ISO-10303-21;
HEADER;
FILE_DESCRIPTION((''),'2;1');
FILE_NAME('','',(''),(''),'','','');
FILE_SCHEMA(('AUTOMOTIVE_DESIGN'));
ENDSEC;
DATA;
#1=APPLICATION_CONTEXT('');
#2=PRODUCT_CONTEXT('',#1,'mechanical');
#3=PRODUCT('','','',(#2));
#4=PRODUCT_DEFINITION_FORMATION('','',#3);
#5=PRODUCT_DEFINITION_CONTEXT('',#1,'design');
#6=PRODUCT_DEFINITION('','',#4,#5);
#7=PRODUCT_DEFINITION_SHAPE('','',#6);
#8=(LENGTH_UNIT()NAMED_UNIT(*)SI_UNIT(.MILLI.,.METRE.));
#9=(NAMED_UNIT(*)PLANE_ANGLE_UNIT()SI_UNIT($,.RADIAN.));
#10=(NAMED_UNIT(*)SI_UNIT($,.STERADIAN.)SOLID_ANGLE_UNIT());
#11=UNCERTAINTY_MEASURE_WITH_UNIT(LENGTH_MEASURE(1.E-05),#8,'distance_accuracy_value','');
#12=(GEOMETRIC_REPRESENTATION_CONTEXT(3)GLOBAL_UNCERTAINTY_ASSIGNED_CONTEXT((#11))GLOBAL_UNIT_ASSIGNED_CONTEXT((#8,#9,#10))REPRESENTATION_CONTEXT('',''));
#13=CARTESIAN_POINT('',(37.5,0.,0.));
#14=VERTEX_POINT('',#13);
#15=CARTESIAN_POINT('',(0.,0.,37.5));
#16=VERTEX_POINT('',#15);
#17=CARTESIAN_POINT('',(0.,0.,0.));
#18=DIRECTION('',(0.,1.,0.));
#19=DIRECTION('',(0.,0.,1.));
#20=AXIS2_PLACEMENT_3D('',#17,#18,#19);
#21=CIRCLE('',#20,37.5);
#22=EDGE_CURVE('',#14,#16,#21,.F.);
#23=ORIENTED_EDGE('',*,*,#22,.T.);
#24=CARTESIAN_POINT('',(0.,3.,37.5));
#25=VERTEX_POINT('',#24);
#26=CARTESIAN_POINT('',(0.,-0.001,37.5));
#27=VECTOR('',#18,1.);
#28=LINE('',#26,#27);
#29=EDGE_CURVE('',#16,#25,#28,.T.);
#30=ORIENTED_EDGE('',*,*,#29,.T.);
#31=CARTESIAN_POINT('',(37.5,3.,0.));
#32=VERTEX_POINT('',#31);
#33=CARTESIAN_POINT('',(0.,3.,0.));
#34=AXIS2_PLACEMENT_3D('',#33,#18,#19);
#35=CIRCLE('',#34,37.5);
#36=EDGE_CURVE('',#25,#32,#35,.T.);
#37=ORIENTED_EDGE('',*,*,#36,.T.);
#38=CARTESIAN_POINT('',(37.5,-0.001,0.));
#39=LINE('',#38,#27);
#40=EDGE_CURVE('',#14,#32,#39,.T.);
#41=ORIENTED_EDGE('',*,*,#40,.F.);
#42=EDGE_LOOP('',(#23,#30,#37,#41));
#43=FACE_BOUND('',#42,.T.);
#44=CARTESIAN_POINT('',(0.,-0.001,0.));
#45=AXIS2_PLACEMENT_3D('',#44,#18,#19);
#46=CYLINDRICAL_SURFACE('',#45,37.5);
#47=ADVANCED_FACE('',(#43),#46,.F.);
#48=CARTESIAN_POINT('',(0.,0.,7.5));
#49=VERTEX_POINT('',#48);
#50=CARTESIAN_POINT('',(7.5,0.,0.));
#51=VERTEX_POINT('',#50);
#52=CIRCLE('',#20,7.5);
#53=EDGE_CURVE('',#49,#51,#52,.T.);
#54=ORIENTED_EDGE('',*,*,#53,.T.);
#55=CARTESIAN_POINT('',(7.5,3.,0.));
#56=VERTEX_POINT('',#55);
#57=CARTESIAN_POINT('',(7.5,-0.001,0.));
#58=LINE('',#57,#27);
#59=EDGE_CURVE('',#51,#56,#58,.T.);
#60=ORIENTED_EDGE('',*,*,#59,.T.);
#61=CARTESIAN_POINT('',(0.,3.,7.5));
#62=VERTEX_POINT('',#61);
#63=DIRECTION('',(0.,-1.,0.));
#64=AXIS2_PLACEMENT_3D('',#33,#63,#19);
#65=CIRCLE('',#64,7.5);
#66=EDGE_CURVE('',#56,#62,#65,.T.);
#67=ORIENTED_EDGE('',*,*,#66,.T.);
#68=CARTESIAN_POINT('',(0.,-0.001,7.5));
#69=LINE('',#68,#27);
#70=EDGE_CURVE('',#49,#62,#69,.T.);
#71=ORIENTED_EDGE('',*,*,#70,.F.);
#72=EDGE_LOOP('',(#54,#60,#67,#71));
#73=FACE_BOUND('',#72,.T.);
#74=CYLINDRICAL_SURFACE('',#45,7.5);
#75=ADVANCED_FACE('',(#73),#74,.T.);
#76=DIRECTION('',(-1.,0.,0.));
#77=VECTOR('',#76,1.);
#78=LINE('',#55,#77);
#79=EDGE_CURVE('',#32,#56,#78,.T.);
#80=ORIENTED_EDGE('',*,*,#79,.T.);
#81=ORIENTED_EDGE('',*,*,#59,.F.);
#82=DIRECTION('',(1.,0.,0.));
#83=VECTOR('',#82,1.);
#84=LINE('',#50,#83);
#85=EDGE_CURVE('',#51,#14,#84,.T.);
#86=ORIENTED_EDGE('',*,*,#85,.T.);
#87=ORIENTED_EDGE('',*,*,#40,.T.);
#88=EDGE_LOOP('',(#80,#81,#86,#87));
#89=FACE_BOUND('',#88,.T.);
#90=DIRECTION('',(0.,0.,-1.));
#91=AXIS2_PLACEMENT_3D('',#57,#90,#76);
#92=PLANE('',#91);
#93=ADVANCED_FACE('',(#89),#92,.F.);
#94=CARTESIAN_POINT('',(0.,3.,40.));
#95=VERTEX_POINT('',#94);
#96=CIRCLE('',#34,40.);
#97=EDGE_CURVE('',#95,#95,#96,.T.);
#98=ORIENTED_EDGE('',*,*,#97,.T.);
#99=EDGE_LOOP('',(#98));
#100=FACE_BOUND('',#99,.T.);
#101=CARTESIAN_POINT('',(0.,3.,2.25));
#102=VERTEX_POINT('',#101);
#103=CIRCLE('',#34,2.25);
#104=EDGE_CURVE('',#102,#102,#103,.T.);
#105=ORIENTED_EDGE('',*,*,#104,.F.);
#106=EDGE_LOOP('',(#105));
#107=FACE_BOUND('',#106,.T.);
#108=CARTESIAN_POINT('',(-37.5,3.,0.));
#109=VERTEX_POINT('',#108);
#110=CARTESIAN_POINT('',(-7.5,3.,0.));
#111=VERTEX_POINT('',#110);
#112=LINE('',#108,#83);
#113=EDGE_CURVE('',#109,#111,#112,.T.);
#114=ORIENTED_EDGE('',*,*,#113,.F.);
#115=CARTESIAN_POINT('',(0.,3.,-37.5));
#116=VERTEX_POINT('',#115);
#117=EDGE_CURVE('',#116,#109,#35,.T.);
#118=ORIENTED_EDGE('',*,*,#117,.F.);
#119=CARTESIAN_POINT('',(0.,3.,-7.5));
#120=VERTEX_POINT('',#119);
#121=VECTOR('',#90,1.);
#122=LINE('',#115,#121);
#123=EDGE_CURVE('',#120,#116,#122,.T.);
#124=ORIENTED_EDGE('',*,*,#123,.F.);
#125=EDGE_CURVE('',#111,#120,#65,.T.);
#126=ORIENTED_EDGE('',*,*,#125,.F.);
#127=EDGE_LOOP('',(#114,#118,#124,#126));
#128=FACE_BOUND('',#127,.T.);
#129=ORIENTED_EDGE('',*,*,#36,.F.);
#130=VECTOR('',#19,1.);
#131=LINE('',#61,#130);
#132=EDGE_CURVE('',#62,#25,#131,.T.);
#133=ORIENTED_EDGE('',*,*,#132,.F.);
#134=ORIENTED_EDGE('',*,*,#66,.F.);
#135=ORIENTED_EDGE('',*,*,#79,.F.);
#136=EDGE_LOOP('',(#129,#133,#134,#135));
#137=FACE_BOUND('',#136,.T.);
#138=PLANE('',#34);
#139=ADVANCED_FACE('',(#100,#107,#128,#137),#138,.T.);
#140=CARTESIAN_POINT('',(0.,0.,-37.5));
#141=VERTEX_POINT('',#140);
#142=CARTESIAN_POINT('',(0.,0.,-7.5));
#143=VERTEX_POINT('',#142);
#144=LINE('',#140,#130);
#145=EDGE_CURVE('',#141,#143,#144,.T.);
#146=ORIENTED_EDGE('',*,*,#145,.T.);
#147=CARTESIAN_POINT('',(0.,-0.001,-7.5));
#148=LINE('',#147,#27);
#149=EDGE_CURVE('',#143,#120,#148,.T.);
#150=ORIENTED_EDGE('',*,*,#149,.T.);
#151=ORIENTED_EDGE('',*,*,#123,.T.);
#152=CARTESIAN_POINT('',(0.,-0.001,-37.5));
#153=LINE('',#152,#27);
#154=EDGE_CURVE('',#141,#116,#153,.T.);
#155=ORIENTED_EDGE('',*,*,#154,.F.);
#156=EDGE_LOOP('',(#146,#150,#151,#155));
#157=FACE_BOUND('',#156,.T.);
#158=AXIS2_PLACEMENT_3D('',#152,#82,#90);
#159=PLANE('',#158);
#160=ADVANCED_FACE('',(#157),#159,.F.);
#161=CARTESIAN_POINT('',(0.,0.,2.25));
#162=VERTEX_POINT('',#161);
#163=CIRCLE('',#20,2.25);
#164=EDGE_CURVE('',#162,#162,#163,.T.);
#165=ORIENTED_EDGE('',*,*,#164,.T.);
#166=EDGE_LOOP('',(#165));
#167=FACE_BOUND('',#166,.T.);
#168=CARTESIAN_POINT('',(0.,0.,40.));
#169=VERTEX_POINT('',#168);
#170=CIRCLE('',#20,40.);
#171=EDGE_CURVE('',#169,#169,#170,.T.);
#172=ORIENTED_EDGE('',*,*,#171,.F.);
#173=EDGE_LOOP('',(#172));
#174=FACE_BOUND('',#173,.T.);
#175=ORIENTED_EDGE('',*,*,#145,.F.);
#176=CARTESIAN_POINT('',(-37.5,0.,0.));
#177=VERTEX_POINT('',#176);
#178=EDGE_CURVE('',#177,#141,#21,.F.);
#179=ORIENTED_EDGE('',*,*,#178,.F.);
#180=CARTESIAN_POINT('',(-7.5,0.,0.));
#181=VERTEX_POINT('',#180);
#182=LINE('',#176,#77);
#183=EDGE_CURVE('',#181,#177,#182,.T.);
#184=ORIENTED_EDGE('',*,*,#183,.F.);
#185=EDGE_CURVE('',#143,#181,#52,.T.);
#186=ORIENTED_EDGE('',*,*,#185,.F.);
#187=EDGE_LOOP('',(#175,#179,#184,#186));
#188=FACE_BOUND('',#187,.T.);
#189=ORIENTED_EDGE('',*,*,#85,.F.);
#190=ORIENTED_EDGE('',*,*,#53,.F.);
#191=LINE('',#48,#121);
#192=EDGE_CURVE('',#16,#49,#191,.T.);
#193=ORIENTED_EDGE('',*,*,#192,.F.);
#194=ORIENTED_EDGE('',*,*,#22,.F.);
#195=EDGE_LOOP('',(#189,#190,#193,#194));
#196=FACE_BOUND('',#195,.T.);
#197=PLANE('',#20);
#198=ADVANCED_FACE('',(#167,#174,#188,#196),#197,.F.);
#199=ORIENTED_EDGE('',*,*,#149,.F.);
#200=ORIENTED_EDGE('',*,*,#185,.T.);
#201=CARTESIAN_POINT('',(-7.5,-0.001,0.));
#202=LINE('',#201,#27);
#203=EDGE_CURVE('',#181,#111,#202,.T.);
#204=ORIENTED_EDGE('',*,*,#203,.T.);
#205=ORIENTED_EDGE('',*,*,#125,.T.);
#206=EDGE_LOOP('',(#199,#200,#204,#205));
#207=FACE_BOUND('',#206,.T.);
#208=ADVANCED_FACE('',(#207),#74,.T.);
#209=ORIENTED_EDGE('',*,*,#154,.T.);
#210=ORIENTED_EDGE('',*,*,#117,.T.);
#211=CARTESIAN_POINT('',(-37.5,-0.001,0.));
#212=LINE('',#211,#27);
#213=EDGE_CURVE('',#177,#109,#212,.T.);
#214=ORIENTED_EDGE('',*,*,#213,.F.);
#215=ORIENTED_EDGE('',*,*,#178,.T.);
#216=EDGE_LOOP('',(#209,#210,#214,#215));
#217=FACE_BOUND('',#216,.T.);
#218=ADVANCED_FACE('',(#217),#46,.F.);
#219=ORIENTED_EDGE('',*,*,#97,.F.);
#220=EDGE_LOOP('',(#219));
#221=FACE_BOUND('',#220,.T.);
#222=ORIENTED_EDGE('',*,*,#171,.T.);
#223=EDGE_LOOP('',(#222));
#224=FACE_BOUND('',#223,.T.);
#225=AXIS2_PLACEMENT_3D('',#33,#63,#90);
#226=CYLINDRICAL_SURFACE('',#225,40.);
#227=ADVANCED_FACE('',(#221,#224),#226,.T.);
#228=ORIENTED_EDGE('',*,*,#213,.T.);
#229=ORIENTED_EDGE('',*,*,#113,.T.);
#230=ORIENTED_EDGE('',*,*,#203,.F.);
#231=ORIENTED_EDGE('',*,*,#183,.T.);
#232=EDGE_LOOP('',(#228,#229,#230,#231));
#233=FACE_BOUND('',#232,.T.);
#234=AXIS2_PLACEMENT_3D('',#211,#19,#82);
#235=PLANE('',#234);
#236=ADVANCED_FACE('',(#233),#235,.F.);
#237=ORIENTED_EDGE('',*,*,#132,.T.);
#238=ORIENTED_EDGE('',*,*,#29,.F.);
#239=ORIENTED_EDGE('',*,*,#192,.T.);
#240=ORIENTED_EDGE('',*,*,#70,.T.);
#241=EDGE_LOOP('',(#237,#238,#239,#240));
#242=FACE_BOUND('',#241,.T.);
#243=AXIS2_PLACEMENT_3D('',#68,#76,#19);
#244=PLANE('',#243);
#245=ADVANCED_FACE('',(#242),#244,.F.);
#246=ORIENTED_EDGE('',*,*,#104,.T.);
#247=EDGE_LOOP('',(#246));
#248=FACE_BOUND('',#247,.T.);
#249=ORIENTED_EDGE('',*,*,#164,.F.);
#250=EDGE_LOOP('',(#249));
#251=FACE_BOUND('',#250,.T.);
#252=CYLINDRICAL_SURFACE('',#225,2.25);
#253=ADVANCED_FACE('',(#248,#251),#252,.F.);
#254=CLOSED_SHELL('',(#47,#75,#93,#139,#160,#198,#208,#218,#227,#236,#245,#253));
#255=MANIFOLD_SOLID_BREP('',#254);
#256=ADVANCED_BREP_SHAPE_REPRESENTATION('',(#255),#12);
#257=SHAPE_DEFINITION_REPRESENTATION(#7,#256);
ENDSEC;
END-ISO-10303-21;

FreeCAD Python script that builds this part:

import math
import FreeCAD as App
import Part
import Sketcher
from FreeCAD import Vector
Q = App.Units.Quantity

doc = App.newDocument("Part")
body = doc.addObject("PartDesign::Body", "Body")

# Sketch on XZ plane
sketch1 = body.newObject("Sketcher::SketchObject", "Sketch")
sketch1.AttachmentSupport = (doc.getObject("XZ_Plane"), [""])
sketch1.MapMode = "FlatFace"
sketch1.addGeometry([
    Part.Circle(Vector(0, 0, 0), Vector(0, 0, 1), 40),
    Part.Circle(Vector(0, 0, 0), Vector(0, 0, 1), 2.2),
], False)
sketch1.addConstraint([
    Sketcher.Constraint("Coincident", 0, 3, -1, 1),
    Sketcher.Constraint("Coincident", 1, 3, -1, 1),
    Sketcher.Constraint("Diameter", 0, Q("80 mm")),
    Sketcher.Constraint("Diameter", 1, Q("4.5 mm")),
])
pad1 = body.newObject("PartDesign::Pad", "Pad")
pad1.Profile = sketch1
pad1.Length = 3
pad1.Reversed = True

# Sketch on XZ plane
sketch2 = body.newObject("Sketcher::SketchObject", "Sketch001")
sketch2.AttachmentSupport = (doc.getObject("XZ_Plane"), [""])
sketch2.MapMode = "FlatFace"
sketch2.AttachmentOffset = App.Placement(Vector(0, 0, -3), App.Rotation())
sketch2.addGeometry([
    Part.LineSegment(Vector(-38, 0, 0), Vector(-8, 0, 0)),
    Part.ArcOfCircle(Part.Circle(Vector(0, 0, 0), Vector(0, 0, 1), 8), math.radians(180), math.radians(270)),
    Part.LineSegment(Vector(0, -8, 0), Vector(0, -38, 0)),
    Part.ArcOfCircle(Part.Circle(Vector(0, 0, 0), Vector(0, 0, 1), 38), math.radians(-180), math.radians(-90)),
], False)
sketch2.addConstraint([
    Sketcher.Constraint("Coincident", 0, 2, 1, 1),
    Sketcher.Constraint("Coincident", 1, 2, 2, 1),
    Sketcher.Constraint("Coincident", 2, 2, 3, 2),
    Sketcher.Constraint("Coincident", 3, 1, 0, 1),
    Sketcher.Constraint("Horizontal", 0),
    Sketcher.Constraint("Vertical", 2),
    Sketcher.Constraint("Coincident", 1, 3, -1, 1),
    Sketcher.Constraint("Coincident", 3, 3, -1, 1),
    Sketcher.Constraint("PointOnObject", 0, 2, -1),
    Sketcher.Constraint("PointOnObject", 1, 2, -2),
    Sketcher.Constraint("Radius", 1, Q("7.5 mm")),
    Sketcher.Constraint("Radius", 3, Q("37.5 mm")),
])
pocket1 = body.newObject("PartDesign::Pocket", "Pocket")
pocket1.Profile = sketch2
pocket1.Type = "UpToFirst"
pocket1.Reversed = True

# Sketch on XZ plane
sketch3 = body.newObject("Sketcher::SketchObject", "Sketch002")
sketch3.AttachmentSupport = (doc.getObject("XZ_Plane"), [""])
sketch3.MapMode = "FlatFace"
sketch3.AttachmentOffset = App.Placement(Vector(0, 0, -3), App.Rotation())
sketch3.addGeometry([
    Part.LineSegment(Vector(38, 0, 0), Vector(8, 0, 0)),
    Part.ArcOfCircle(Part.Circle(Vector(0, 0, 0), Vector(0, 0, 1), 8), math.radians(0), math.radians(90)),
    Part.LineSegment(Vector(0, 8, 0), Vector(0, 38, 0)),
    Part.ArcOfCircle(Part.Circle(Vector(0, 0, 0), Vector(0, 0, 1), 38), math.radians(0), math.radians(90)),
], False)
sketch3.addConstraint([
    Sketcher.Constraint("Coincident", 0, 2, 1, 1),
    Sketcher.Constraint("Coincident", 1, 2, 2, 1),
    Sketcher.Constraint("Coincident", 2, 2, 3, 2),
    Sketcher.Constraint("Coincident", 3, 1, 0, 1),
    Sketcher.Constraint("Horizontal", 0),
    Sketcher.Constraint("Vertical", 2),
    Sketcher.Constraint("Coincident", 1, 3, -1, 1),
    Sketcher.Constraint("Coincident", 3, 3, -1, 1),
    Sketcher.Constraint("PointOnObject", 0, 2, -1),
    Sketcher.Constraint("PointOnObject", 1, 2, -2),
    Sketcher.Constraint("Radius", 1, Q("7.5 mm")),
    Sketcher.Constraint("Radius", 3, Q("37.5 mm")),
])
pocket2 = body.newObject("PartDesign::Pocket", "Pocket001")
pocket2.Profile = sketch3
pocket2.Type = "UpToFirst"
pocket2.Reversed = True

doc.recompute()
